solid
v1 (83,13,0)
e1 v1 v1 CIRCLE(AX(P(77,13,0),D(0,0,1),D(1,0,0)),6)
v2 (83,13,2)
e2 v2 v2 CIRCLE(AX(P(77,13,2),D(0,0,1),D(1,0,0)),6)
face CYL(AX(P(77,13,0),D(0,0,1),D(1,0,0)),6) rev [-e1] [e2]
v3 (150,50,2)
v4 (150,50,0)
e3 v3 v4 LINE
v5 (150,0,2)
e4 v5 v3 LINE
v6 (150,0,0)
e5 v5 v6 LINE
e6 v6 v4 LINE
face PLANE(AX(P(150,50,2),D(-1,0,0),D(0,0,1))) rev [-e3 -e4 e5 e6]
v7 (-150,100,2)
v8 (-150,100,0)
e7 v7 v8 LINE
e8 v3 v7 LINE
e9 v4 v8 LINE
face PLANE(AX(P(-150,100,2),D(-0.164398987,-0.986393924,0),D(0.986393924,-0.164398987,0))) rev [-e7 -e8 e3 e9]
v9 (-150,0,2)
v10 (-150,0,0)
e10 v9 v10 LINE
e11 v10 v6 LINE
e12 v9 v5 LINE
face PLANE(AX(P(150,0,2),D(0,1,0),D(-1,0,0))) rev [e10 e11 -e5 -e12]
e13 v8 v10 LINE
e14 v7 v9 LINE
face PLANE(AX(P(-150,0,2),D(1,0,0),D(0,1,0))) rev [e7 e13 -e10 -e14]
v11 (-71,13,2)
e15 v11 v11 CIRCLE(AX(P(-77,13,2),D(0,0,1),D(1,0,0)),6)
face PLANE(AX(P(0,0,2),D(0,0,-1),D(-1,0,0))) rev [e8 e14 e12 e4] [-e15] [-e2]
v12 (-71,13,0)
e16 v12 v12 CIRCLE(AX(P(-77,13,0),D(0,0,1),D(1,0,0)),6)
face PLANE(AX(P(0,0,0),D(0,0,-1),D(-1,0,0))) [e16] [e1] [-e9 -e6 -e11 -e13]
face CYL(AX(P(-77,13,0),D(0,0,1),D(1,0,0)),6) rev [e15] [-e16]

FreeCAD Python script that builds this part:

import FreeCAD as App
import Part
import Sketcher
from FreeCAD import Vector
Q = App.Units.Quantity

doc = App.newDocument("Part")
body = doc.addObject("PartDesign::Body", "Body")

# Sketch on XY plane
sketch1 = body.newObject("Sketcher::SketchObject", "Sketch")
sketch1.AttachmentSupport = (doc.getObject("XY_Plane"), [""])
sketch1.MapMode = "FlatFace"
sketch1.addGeometry([
    Part.LineSegment(Vector(-150, 0, 0), Vector(150, 0, 0)),
    Part.LineSegment(Vector(150, 0, 0), Vector(150, 50, 0)),
    Part.LineSegment(Vector(150, 50, 0), Vector(-150, 100, 0)),
    Part.LineSegment(Vector(-150, 100, 0), Vector(-150, 0, 0)),
], False)
sketch1.addConstraint([
    Sketcher.Constraint("Coincident", 0, 2, 1, 1),
    Sketcher.Constraint("Coincident", 1, 2, 2, 1),
    Sketcher.Constraint("Coincident", 2, 2, 3, 1),
    Sketcher.Constraint("Coincident", 3, 2, 0, 1),
    Sketcher.Constraint("Horizontal", 0),
    Sketcher.Constraint("Vertical", 1),
    Sketcher.Constraint("Vertical", 3),
    Sketcher.Constraint("Symmetric", 0, 2, 3, 2, -1, 1),
    Sketcher.Constraint("DistanceX", 0, 1, 0, 2, Q("300 mm")),
    Sketcher.Constraint("DistanceY", 1, 1, 1, 2, Q("50 mm")),
    Sketcher.Constraint("DistanceY", 3, 2, 3, 1, Q("100 mm")),
])
pad1 = body.newObject("PartDesign::Pad", "Pad")
pad1.Profile = sketch1
pad1.Length = 2

# Sketch on XY plane
sketch2 = body.newObject("Sketcher::SketchObject", "Sketch001")
sketch2.AttachmentSupport = (doc.getObject("XY_Plane"), [""])
sketch2.MapMode = "FlatFace"
sketch2.AttachmentOffset = App.Placement(Vector(0, 0, 2), App.Rotation())
sketch2.addGeometry([
    Part.Circle(Vector(-77, 13, 0), Vector(0, 0, 1), 6),
    Part.Circle(Vector(77, 13, 0), Vector(0, 0, 1), 6),
], False)
sketch2.addConstraint([
    Sketcher.Constraint("Equal", 0, 1),
    Sketcher.Constraint("Symmetric", 0, 3, 1, 3, -2),
    Sketcher.Constraint("Diameter", 0, Q("12 mm")),
    Sketcher.Constraint("DistanceX", 0, 3, -1, 1, Q("77 mm")),
    Sketcher.Constraint("DistanceY", -1, 1, 0, 3, Q("13 mm")),
])
pocket1 = body.newObject("PartDesign::Pocket", "Pocket")
pocket1.Profile = sketch2
pocket1.Type = "ThroughAll"

doc.recompute()
